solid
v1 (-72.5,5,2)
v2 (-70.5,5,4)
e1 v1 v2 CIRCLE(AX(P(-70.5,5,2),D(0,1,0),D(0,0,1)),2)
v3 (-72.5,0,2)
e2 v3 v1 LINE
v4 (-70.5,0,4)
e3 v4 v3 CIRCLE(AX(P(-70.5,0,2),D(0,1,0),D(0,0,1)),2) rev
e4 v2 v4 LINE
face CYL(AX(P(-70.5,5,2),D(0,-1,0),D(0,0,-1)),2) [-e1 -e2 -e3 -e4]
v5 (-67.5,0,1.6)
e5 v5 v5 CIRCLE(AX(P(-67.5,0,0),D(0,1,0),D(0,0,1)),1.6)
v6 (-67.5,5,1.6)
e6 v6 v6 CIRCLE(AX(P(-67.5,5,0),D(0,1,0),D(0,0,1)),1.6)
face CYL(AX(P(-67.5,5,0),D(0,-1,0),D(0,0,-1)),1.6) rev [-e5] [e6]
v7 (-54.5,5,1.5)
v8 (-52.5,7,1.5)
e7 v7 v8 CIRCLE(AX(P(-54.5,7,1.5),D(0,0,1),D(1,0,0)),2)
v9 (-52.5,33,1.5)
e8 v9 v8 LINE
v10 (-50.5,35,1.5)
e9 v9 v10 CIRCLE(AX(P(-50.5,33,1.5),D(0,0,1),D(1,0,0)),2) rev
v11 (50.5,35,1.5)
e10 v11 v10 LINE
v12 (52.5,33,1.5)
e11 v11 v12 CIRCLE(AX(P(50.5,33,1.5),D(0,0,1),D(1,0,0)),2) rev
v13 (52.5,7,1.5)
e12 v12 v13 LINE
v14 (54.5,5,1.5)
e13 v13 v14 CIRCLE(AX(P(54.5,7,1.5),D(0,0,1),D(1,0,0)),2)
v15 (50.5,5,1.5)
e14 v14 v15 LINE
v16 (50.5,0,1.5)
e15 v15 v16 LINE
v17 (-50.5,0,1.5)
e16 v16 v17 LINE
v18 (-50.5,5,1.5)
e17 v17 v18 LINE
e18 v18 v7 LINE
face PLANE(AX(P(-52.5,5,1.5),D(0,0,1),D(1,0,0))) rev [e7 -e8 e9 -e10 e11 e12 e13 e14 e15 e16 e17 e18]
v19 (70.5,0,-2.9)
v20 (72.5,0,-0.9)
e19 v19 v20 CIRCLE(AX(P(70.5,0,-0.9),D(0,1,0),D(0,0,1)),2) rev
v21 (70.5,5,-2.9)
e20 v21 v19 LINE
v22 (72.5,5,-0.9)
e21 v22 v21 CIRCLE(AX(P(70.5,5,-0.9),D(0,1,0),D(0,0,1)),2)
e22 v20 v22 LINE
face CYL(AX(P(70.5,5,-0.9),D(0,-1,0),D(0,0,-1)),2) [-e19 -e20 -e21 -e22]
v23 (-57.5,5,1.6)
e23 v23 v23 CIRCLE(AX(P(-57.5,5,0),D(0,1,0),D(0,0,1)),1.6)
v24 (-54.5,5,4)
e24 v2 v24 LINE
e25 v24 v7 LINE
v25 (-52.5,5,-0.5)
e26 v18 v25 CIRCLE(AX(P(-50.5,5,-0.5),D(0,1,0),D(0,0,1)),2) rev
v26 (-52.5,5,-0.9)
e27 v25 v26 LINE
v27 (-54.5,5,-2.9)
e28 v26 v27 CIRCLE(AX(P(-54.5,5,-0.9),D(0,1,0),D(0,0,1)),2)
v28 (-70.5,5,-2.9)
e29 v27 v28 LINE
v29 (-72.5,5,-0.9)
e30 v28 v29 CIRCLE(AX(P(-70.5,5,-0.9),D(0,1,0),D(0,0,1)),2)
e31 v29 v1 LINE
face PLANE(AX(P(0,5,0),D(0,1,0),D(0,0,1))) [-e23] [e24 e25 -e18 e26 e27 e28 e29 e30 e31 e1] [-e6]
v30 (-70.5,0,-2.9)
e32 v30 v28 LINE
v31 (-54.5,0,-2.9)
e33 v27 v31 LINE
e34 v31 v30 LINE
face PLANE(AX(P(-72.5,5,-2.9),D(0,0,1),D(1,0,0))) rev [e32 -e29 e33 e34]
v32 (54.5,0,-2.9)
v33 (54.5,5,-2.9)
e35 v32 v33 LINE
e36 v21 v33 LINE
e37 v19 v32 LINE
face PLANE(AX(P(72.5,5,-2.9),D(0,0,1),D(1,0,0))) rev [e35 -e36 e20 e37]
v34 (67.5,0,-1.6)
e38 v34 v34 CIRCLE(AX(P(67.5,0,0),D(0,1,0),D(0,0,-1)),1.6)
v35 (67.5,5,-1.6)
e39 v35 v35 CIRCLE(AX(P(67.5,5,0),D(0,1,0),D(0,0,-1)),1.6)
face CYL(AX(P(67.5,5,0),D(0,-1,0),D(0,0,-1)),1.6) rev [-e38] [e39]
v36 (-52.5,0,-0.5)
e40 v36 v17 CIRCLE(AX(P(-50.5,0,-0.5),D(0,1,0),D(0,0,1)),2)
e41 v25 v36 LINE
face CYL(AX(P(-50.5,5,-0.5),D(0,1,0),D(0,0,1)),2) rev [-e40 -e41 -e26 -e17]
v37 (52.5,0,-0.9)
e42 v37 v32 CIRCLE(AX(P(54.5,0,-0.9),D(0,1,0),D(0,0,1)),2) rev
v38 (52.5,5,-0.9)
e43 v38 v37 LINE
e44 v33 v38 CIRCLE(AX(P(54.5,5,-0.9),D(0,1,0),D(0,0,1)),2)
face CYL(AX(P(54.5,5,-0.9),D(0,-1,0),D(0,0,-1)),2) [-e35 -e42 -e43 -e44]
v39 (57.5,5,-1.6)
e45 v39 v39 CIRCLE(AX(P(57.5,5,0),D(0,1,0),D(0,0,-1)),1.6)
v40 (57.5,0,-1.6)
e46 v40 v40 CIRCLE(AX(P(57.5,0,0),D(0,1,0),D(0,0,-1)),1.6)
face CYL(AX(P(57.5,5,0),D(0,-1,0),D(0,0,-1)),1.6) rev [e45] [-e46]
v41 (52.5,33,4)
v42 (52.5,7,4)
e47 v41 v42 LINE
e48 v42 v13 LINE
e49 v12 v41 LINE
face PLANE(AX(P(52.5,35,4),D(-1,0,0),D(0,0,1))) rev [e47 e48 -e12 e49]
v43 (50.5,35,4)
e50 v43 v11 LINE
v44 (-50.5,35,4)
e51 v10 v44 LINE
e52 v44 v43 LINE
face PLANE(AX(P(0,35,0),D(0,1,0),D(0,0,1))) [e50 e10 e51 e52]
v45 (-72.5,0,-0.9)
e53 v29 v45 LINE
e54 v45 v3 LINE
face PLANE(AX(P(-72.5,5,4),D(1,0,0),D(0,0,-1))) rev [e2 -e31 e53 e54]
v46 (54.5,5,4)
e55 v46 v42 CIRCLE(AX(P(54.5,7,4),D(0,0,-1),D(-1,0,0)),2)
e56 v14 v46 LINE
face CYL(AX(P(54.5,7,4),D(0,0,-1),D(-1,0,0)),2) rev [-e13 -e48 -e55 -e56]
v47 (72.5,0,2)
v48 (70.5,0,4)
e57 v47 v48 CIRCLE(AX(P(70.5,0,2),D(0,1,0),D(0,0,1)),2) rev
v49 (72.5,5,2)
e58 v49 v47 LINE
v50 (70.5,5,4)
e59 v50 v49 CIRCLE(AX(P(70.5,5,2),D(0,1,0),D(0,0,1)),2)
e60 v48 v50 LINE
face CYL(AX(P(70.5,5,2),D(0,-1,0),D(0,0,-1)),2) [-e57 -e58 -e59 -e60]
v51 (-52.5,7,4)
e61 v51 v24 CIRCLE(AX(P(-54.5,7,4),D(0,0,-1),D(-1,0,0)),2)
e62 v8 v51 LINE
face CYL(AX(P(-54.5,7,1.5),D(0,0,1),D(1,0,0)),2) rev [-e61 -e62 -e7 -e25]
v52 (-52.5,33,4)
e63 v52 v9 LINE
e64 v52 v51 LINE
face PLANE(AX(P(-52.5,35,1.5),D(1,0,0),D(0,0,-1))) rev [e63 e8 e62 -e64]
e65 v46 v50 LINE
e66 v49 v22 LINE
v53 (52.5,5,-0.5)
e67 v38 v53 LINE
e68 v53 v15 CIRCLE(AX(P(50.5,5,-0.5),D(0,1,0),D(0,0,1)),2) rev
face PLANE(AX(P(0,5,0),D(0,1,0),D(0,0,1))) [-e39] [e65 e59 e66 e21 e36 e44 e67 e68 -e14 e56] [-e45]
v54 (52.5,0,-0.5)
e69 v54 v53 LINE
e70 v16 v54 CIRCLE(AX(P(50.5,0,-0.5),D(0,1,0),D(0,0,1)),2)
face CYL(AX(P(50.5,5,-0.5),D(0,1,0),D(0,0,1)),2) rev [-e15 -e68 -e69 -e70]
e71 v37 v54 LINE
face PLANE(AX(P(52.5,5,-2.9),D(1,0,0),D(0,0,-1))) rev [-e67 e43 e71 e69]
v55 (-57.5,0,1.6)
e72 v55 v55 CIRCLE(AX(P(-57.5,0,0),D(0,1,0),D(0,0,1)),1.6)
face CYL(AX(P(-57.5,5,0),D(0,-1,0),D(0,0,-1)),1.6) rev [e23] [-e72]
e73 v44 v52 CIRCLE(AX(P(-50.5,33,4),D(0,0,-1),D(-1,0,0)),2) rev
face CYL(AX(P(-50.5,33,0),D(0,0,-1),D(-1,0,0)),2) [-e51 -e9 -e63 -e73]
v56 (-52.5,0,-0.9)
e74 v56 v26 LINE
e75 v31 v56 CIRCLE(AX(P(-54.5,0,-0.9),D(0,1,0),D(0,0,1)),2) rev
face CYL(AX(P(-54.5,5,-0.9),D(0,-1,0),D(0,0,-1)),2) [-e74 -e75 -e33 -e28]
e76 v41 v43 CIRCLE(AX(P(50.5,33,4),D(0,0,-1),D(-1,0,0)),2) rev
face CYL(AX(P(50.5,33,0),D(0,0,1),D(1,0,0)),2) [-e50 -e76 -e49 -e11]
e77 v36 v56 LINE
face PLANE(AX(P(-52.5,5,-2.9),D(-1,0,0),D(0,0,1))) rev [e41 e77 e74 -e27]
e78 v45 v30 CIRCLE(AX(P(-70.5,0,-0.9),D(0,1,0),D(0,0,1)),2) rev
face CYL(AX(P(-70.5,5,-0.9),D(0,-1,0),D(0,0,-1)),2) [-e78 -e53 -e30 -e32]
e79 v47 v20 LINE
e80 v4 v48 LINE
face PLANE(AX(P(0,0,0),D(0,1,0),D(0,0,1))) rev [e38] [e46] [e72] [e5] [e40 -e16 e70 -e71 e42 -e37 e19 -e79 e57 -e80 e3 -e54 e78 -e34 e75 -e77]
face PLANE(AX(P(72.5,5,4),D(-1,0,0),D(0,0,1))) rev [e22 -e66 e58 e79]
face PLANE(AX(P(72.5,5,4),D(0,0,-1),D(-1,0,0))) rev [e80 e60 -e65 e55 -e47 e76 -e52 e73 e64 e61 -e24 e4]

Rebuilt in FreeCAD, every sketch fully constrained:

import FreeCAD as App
import Part
import Sketcher
from FreeCAD import Vector
Q = App.Units.Quantity


def edges_at(feature, points):
    """Names of the edges that pass closest to the given points."""
    edges = feature.Shape.Edges
    near = lambda p: min(range(len(edges)), key=lambda i: edges[i].distToShape(Part.Vertex(*p))[0])
    return sorted({f"Edge{near(p) + 1}" for p in points})

doc = App.newDocument("Part")
params = doc.addObject("Spreadsheet::Sheet", "Params")
for row, (alias, value) in enumerate([
    ("sketch1_diameter", "3.2 mm"),
    ("sketch1_width", "145 mm"),
    ("sketch1_width2", "20 mm"),
    ("sketch1_height", "6.9 mm"),
    ("sketch1_height2", "4.4 mm"),
    ("pad1_length", "5 mm"),
    ("sketch2_width", "105 mm"),
    ("sketch2_height", "2.5 mm"),
    ("pad2_length", "30 mm"),
    ("fillet_radius", "2 mm"),
    ("fillet2_radius", "2 mm"),
], start=1):
    params.set(f"A{row}", alias)
    params.set(f"B{row}", "=" + value)
    params.setAlias(f"B{row}", alias)

body = doc.addObject("PartDesign::Body", "Body")

# Sketch on XZ plane
sketch1 = body.newObject("Sketcher::SketchObject", "Sketch")
sketch1.AttachmentSupport = (doc.getObject("XZ_Plane"), [""])
sketch1.MapMode = "FlatFace"
sketch1.addGeometry(Part.LineSegment(Vector(-72.5, 4, 0), Vector(72.5, 4, 0)), False)
sketch1.addGeometry(Part.LineSegment(Vector(72.5, 4, 0), Vector(72.5, -2.9, 0)), False)
sketch1.addGeometry(Part.LineSegment(Vector(72.5, -2.9, 0), Vector(52.5, -2.9, 0)), False)
sketch1.addGeometry(Part.LineSegment(Vector(52.5, -2.9, 0), Vector(52.5, 1.5, 0)), False)
sketch1.addGeometry(Part.LineSegment(Vector(52.5, 1.5, 0), Vector(-52.5, 1.5, 0)), False)
sketch1.addGeometry(Part.LineSegment(Vector(-52.5, 1.5, 0), Vector(-52.5, -2.9, 0)), False)
sketch1.addGeometry(Part.LineSegment(Vector(-52.5, -2.9, 0), Vector(-72.5, -2.9, 0)), False)
sketch1.addGeometry(Part.LineSegment(Vector(-72.5, -2.9, 0), Vector(-72.5, 4, 0)), False)
sketch1.addGeometry(Part.Circle(Vector(67.5, 0, 0), Vector(0, 0, 1), 1.6), False)
sketch1.addGeometry(Part.Circle(Vector(57.5, 0, 0), Vector(0, 0, 1), 1.6), False)
sketch1.addGeometry(Part.Circle(Vector(-57.5, 0, 0), Vector(0, 0, 1), 1.6), False)
sketch1.addGeometry(Part.Circle(Vector(-67.5, 0, 0), Vector(0, 0, 1), 1.6), False)
sketch1.addConstraint(Sketcher.Constraint("Coincident", 0, 2, 1, 1))
sketch1.addConstraint(Sketcher.Constraint("Coincident", 1, 2, 2, 1))
sketch1.addConstraint(Sketcher.Constraint("Coincident", 2, 2, 3, 1))
sketch1.addConstraint(Sketcher.Constraint("Coincident", 3, 2, 4, 1))
sketch1.addConstraint(Sketcher.Constraint("Coincident", 4, 2, 5, 1))
sketch1.addConstraint(Sketcher.Constraint("Coincident", 5, 2, 6, 1))
sketch1.addConstraint(Sketcher.Constraint("Coincident", 6, 2, 7, 1))
sketch1.addConstraint(Sketcher.Constraint("Coincident", 7, 2, 0, 1))
sketch1.addConstraint(Sketcher.Constraint("Horizontal", 0))
sketch1.addConstraint(Sketcher.Constraint("Vertical", 1))
sketch1.addConstraint(Sketcher.Constraint("Horizontal", 2))
sketch1.addConstraint(Sketcher.Constraint("Vertical", 3))
sketch1.addConstraint(Sketcher.Constraint("Horizontal", 4))
sketch1.addConstraint(Sketcher.Constraint("Vertical", 5))
sketch1.addConstraint(Sketcher.Constraint("Horizontal", 6))
sketch1.addConstraint(Sketcher.Constraint("Vertical", 7))
sketch1.addConstraint(Sketcher.Constraint("Equal", 8, 9))
sketch1.addConstraint(Sketcher.Constraint("Equal", 9, 10))
sketch1.addConstraint(Sketcher.Constraint("Equal", 10, 11))
sketch1.addConstraint(Sketcher.Constraint("Symmetric", 9, 3, 10, 3, -1, 1))
sketch1.addConstraint(Sketcher.Constraint("Symmetric", 8, 3, 11, 3, -1, 1))
sketch1.addConstraint(Sketcher.Constraint("Symmetric", 2, 2, 5, 2, -2))
sketch1.addConstraint(Sketcher.Constraint("PointOnObject", 8, 3, -1))
sketch1.addConstraint(Sketcher.Constraint("PointOnObject", 9, 3, -1))
sketch1.addConstraint(Sketcher.Constraint("Equal", 2, 6))
sketch1.addConstraint(Sketcher.Constraint("Diameter", 8, Q("3.2 mm")))
sketch1.addConstraint(Sketcher.Constraint("DistanceX", 0, 1, 0, 2, Q("145 mm")))
sketch1.addConstraint(Sketcher.Constraint("DistanceX", 2, 2, 2, 1, Q("20 mm")))
sketch1.addConstraint(Sketcher.Constraint("DistanceY", 1, 2, 1, 1, Q("6.9 mm")))
sketch1.addConstraint(Sketcher.Constraint("DistanceY", 3, 1, 3, 2, Q("4.4 mm")))
sketch1.addConstraint(Sketcher.Constraint("DistanceY", -1, 1, 0, 2, Q("4 mm")))
sketch1.addConstraint(Sketcher.Constraint("DistanceX", 9, 3, 8, 3, Q("10 mm")))
sketch1.addConstraint(Sketcher.Constraint("DistanceX", 10, 3, 9, 3, Q("115 mm")))
sketch1.setExpression("Constraints[25]", "Params.sketch1_diameter")
sketch1.setExpression("Constraints[26]", "Params.sketch1_width")
sketch1.setExpression("Constraints[27]", "Params.sketch1_width2")
sketch1.setExpression("Constraints[28]", "Params.sketch1_height")
sketch1.setExpression("Constraints[29]", "Params.sketch1_height2")
pad1 = body.newObject("PartDesign::Pad", "Pad")
pad1.Profile = sketch1
pad1.setExpression("Length", "Params.pad1_length")
pad1.Reversed = True

# Sketch on XZ plane
sketch2 = body.newObject("Sketcher::SketchObject", "Sketch001")
sketch2.AttachmentSupport = (doc.getObject("XZ_Plane"), [""])
sketch2.MapMode = "FlatFace"
sketch2.AttachmentOffset = App.Placement(Vector(0, 0, -5), App.Rotation())
sketch2.addGeometry(Part.LineSegment(Vector(-52.5, 1.5, 0), Vector(-52.5, 4, 0)), False)
sketch2.addGeometry(Part.LineSegment(Vector(-52.5, 4, 0), Vector(52.5, 4, 0)), False)
sketch2.addGeometry(Part.LineSegment(Vector(52.5, 4, 0), Vector(52.5, 1.5, 0)), False)
sketch2.addGeometry(Part.LineSegment(Vector(52.5, 1.5, 0), Vector(-52.5, 1.5, 0)), False)
sketch2.addConstraint(Sketcher.Constraint("Coincident", 0, 2, 1, 1))
sketch2.addConstraint(Sketcher.Constraint("Coincident", 1, 2, 2, 1))
sketch2.addConstraint(Sketcher.Constraint("Coincident", 2, 2, 3, 1))
sketch2.addConstraint(Sketcher.Constraint("Coincident", 3, 2, 0, 1))
sketch2.addConstraint(Sketcher.Constraint("Vertical", 0))
sketch2.addConstraint(Sketcher.Constraint("Horizontal", 1))
sketch2.addConstraint(Sketcher.Constraint("Vertical", 2))
sketch2.addConstraint(Sketcher.Constraint("Horizontal", 3))
sketch2.addConstraint(Sketcher.Constraint("DistanceX", 1, 1, 1, 2, Q("105 mm")))
sketch2.addConstraint(Sketcher.Constraint("DistanceY", 0, 1, 0, 2, Q("2.5 mm")))
sketch2.addConstraint(Sketcher.Constraint("DistanceY", -1, 1, 0, 2, Q("4 mm")))
sketch2.addConstraint(Sketcher.Constraint("DistanceX", 0, 2, -1, 1, Q("52.5 mm")))
sketch2.setExpression("Constraints[8]", "Params.sketch2_width")
sketch2.setExpression("Constraints[9]", "Params.sketch2_height")
pad2 = body.newObject("PartDesign::Pad", "Pad001")
pad2.Profile = sketch2
pad2.setExpression("Length", "Params.pad2_length")
pad2.Reversed = True
doc.recompute()

fillet = body.newObject("PartDesign::Fillet", "Fillet")
fillet.Base = (pad2, edges_at(pad2, [
    (72.5, 2.5, 4),
    (-72.5, 2.5, 4),
    (72.5, 2.5, -2.9),
    (-72.5, 2.5, -2.9),
    (52.5, 2.5, -2.9),
    (-52.5, 2.5, -2.9),
    (-52.5, 2.5, 1.5),
    (52.5, 2.5, 1.5),
    (52.5, 35, 2.75),
    (-52.5, 35, 2.75),
]))
fillet.setExpression("Radius", "Params.fillet_radius")
doc.recompute()

fillet2 = body.newObject("PartDesign::Fillet", "Fillet001")
fillet2.Base = (fillet, edges_at(fillet, [(-52.5, 5, 2.75), (52.5, 5, 2.75)]))
fillet2.setExpression("Radius", "Params.fillet2_radius")

doc.recompute()
